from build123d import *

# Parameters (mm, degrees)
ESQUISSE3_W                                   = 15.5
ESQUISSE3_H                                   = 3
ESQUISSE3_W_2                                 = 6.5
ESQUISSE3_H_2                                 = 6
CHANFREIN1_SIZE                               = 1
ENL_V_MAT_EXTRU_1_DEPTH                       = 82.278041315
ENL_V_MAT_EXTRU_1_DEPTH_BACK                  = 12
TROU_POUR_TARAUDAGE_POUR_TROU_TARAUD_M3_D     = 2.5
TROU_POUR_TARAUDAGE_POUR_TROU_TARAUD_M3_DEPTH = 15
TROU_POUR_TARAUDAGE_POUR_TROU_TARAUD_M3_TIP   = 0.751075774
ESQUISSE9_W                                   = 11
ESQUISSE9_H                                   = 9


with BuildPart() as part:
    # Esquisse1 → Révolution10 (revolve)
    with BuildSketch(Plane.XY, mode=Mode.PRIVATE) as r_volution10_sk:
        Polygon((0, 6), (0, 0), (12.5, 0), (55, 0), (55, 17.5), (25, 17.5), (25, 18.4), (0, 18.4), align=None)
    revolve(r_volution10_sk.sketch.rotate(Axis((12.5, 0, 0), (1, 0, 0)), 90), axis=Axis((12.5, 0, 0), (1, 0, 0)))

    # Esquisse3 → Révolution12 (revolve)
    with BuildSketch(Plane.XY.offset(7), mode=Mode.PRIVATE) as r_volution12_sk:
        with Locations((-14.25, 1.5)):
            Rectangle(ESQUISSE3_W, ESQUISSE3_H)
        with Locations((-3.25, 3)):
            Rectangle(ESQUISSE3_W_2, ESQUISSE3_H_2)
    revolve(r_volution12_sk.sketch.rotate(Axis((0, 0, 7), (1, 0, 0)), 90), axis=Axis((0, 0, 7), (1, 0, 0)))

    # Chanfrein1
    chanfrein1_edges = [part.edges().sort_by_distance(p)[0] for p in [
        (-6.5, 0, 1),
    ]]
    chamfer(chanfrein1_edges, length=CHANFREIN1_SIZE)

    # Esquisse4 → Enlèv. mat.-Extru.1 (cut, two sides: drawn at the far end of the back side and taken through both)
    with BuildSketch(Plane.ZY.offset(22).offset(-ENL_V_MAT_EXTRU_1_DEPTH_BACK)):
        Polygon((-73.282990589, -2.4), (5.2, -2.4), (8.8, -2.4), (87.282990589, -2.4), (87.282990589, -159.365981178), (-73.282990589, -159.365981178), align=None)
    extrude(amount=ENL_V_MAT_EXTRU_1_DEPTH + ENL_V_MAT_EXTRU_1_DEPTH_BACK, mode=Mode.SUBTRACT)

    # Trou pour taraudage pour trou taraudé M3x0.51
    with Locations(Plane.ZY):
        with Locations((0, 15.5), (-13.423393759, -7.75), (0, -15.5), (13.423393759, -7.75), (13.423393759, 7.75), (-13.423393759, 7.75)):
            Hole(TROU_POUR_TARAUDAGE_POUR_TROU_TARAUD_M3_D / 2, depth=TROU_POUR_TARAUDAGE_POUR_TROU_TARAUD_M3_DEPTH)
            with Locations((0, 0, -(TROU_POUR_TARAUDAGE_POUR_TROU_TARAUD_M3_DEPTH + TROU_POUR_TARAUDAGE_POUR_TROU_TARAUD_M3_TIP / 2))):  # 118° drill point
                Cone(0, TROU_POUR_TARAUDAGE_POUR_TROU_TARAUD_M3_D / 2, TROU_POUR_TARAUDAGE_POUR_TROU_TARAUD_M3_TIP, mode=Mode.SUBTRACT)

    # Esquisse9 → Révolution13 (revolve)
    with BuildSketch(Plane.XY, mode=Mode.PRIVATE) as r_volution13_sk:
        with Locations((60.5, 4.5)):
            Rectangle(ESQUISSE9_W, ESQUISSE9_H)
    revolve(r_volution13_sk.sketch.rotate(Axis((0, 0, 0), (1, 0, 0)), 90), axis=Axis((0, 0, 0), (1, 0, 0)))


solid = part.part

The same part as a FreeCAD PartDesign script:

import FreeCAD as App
import Part
import Sketcher

V = App.Vector


def edges_at(feature, points):
    """Names of the edges that pass closest to the given points."""
    edges = feature.Shape.Edges
    near = lambda p: min(range(len(edges)), key=lambda i: edges[i].distToShape(Part.Vertex(*p))[0])
    return sorted({f"Edge{near(p) + 1}" for p in points})

doc = App.newDocument("Part")
body = doc.addObject("PartDesign::Body", "Body")

sketch1 = body.newObject("Sketcher::SketchObject", "Sketch")
sketch1.AttachmentSupport = (doc.getObject("XY_Plane"), [""])
sketch1.MapMode = "FlatFace"
sketch1.addGeometry(Part.LineSegment(V(0, 0, 0), V(55, 0, 0)), False)
sketch1.addGeometry(Part.LineSegment(V(55, 0, 0), V(55, 17.5, 0)), False)
sketch1.addGeometry(Part.LineSegment(V(55, 17.5, 0), V(25, 17.5, 0)), False)
sketch1.addGeometry(Part.LineSegment(V(25, 17.5, 0), V(25, 18.4, 0)), False)
sketch1.addGeometry(Part.LineSegment(V(25, 18.4, 0), V(0, 18.4, 0)), False)
sketch1.addGeometry(Part.LineSegment(V(0, 18.4, 0), V(0, 0, 0)), False)
sketch1.addConstraint(Sketcher.Constraint("Coincident", 0, 2, 1, 1))
sketch1.addConstraint(Sketcher.Constraint("Coincident", 1, 2, 2, 1))
sketch1.addConstraint(Sketcher.Constraint("Coincident", 2, 2, 3, 1))
sketch1.addConstraint(Sketcher.Constraint("Coincident", 3, 2, 4, 1))
sketch1.addConstraint(Sketcher.Constraint("Coincident", 4, 2, 5, 1))
sketch1.addConstraint(Sketcher.Constraint("Coincident", 5, 2, 0, 1))
sketch1.addConstraint(Sketcher.Constraint("Horizontal", 0))
sketch1.addConstraint(Sketcher.Constraint("Vertical", 1))
sketch1.addConstraint(Sketcher.Constraint("Horizontal", 2))
sketch1.addConstraint(Sketcher.Constraint("Vertical", 3))
sketch1.addConstraint(Sketcher.Constraint("Horizontal", 4))
sketch1.addConstraint(Sketcher.Constraint("Vertical", 5))
sketch1.addConstraint(Sketcher.Constraint("Coincident", 5, 2, -1, 1))
sketch1.addConstraint(Sketcher.Constraint("DistanceX", 0, 1, 0, 2, 55.0))
sketch1.addConstraint(Sketcher.Constraint("DistanceX", 2, 2, 2, 1, 30.0))
sketch1.addConstraint(Sketcher.Constraint("DistanceY", 1, 1, 1, 2, 17.5))
sketch1.addConstraint(Sketcher.Constraint("DistanceY", 3, 1, 3, 2, 0.9))
revolution = body.newObject("PartDesign::Revolution", "Revolution")
revolution.Profile = sketch1
revolution.ReferenceAxis = (sketch1, ["H_Axis"])
revolution.Angle = 360

sketch2 = body.newObject("Sketcher::SketchObject", "Sketch001")
sketch2.AttachmentSupport = (doc.getObject("XY_Plane"), [""])
sketch2.MapMode = "FlatFace"
sketch2.AttachmentOffset = App.Placement(V(0, 0, 7), App.Rotation())
sketch2.addGeometry(Part.LineSegment(V(-22, 3, 0), V(-22, 0, 0)), False)
sketch2.addGeometry(Part.LineSegment(V(-22, 0, 0), V(0, 0, 0)), False)
sketch2.addGeometry(Part.LineSegment(V(0, 0, 0), V(0, 6, 0)), False)
sketch2.addGeometry(Part.LineSegment(V(0, 6, 0), V(-6.5, 6, 0)), False)
sketch2.addGeometry(Part.LineSegment(V(-6.5, 6, 0), V(-6.5, 3, 0)), False)
sketch2.addGeometry(Part.LineSegment(V(-6.5, 3, 0), V(-22, 3, 0)), False)
sketch2.addConstraint(Sketcher.Constraint("Coincident", 0, 2, 1, 1))
sketch2.addConstraint(Sketcher.Constraint("Coincident", 1, 2, 2, 1))
sketch2.addConstraint(Sketcher.Constraint("Coincident", 2, 2, 3, 1))
sketch2.addConstraint(Sketcher.Constraint("Coincident", 3, 2, 4, 1))
sketch2.addConstraint(Sketcher.Constraint("Coincident", 4, 2, 5, 1))
sketch2.addConstraint(Sketcher.Constraint("Coincident", 5, 2, 0, 1))
sketch2.addConstraint(Sketcher.Constraint("Vertical", 0))
sketch2.addConstraint(Sketcher.Constraint("Horizontal", 1))
sketch2.addConstraint(Sketcher.Constraint("Vertical", 2))
sketch2.addConstraint(Sketcher.Constraint("Horizontal", 3))
sketch2.addConstraint(Sketcher.Constraint("Vertical", 4))
sketch2.addConstraint(Sketcher.Constraint("Horizontal", 5))
sketch2.addConstraint(Sketcher.Constraint("Coincident", 1, 2, -1, 1))
sketch2.addConstraint(Sketcher.Constraint("Equal", 0, 4))
sketch2.addConstraint(Sketcher.Constraint("DistanceX", 1, 1, 1, 2, 22.0))
sketch2.addConstraint(Sketcher.Constraint("DistanceY", 0, 2, 0, 1, 3.0))
sketch2.addConstraint(Sketcher.Constraint("DistanceX", 3, 2, 3, 1, 6.5))
revolution2 = body.newObject("PartDesign::Revolution", "Revolution001")
revolution2.Profile = sketch2
revolution2.ReferenceAxis = (sketch2, ["H_Axis"])
revolution2.Angle = 360
doc.recompute()

chamfer = body.newObject("PartDesign::Chamfer", "Chamfer")
chamfer.Base = (revolution2, edges_at(revolution2, [(-6.5, 0, 1)]))
chamfer.Size = 1

sketch3 = body.newObject("Sketcher::SketchObject", "Sketch002")
sketch3.AttachmentSupport = (doc.getObject("YZ_Plane"), [""])
sketch3.MapMode = "FlatFace"
sketch3.AttachmentOffset = App.Placement(V(0, 0, -22), App.Rotation())
sketch3.addGeometry(Part.LineSegment(V(-2, 87, 0), V(-2, -73, 0)), False)
sketch3.addGeometry(Part.LineSegment(V(-2, -73, 0), V(-159, -73, 0)), False)
sketch3.addGeometry(Part.LineSegment(V(-159, -73, 0), V(-159, 87, 0)), False)
sketch3.addGeometry(Part.LineSegment(V(-159, 87, 0), V(-2, 87, 0)), False)
sketch3.addConstraint(Sketcher.Constraint("Coincident", 0, 2, 1, 1))
sketch3.addConstraint(Sketcher.Constraint("Coincident", 1, 2, 2, 1))
sketch3.addConstraint(Sketcher.Constraint("Coincident", 2, 2, 3, 1))
sketch3.addConstraint(Sketcher.Constraint("Coincident", 3, 2, 0, 1))
sketch3.addConstraint(Sketcher.Constraint("Vertical", 0))
sketch3.addConstraint(Sketcher.Constraint("Horizontal", 1))
sketch3.addConstraint(Sketcher.Constraint("Vertical", 2))
sketch3.addConstraint(Sketcher.Constraint("Horizontal", 3))
sketch3.addConstraint(Sketcher.Constraint("DistanceX", 0, 2, -1, 1, 2.4))
sketch3.addConstraint(Sketcher.Constraint("DistanceX", 1, 2, 1, 1, 156.965981))
sketch3.addConstraint(Sketcher.Constraint("DistanceY", 0, 2, 0, 1, 160.565981))
sketch3.addConstraint(Sketcher.Constraint("DistanceY", 0, 2, -1, 1, 73.282991))
pocket1 = body.newObject("PartDesign::Pocket", "Pocket")
pocket1.Profile = sketch3
pocket1.Type = "TwoLengths"
pocket1.Length = 82.278041
pocket1.Length2 = 12

sketch4 = body.newObject("Sketcher::SketchObject", "Sketch003")
sketch4.AttachmentSupport = (doc.getObject("YZ_Plane"), [""])
sketch4.MapMode = "FlatFace"
sketch4.addGeometry(Part.Circle(V(15.5, 0, 0), V(0, 0, 1), 1.2), False)
sketch4.addGeometry(Part.Circle(V(-7.8, -13.4, 0), V(0, 0, 1), 1.2), False)
sketch4.addGeometry(Part.Circle(V(-15.5, 0, 0), V(0, 0, 1), 1.2), False)
sketch4.addGeometry(Part.Circle(V(-7.8, 13.4, 0), V(0, 0, 1), 1.2), False)
sketch4.addGeometry(Part.Circle(V(7.8, 13.4, 0), V(0, 0, 1), 1.2), False)
sketch4.addGeometry(Part.Circle(V(7.8, -13.4, 0), V(0, 0, 1), 1.2), False)
sketch4.addConstraint(Sketcher.Constraint("Equal", 0, 1))
sketch4.addConstraint(Sketcher.Constraint("Equal", 1, 2))
sketch4.addConstraint(Sketcher.Constraint("Equal", 2, 3))
sketch4.addConstraint(Sketcher.Constraint("Equal", 3, 4))
sketch4.addConstraint(Sketcher.Constraint("Equal", 4, 5))
sketch4.addConstraint(Sketcher.Constraint("Symmetric", 0, 3, 2, 3, -1, 1))
sketch4.addConstraint(Sketcher.Constraint("Symmetric", 1, 3, 4, 3, -1, 1))
sketch4.addConstraint(Sketcher.Constraint("Symmetric", 3, 3, 5, 3, -1, 1))
sketch4.addConstraint(Sketcher.Constraint("Symmetric", 3, 3, 4, 3, -2))
sketch4.addConstraint(Sketcher.Constraint("PointOnObject", 0, 3, -1))
sketch4.addConstraint(Sketcher.Constraint("Diameter", 0, 2.5))
sketch4.addConstraint(Sketcher.Constraint("DistanceX", 2, 3, 0, 3, 31.0))
sketch4.addConstraint(Sketcher.Constraint("DistanceX", 3, 3, 4, 3, 15.5))
sketch4.addConstraint(Sketcher.Constraint("DistanceY", 1, 3, -1, 1, 13.423394))
doc.recompute()
hole = body.newObject("PartDesign::Hole", "Hole")
hole.Profile = sketch4
hole.ThreadType = "None"
hole.Diameter = 2.5
hole.DepthType = "Dimension"
hole.Depth = 15
hole.DrillPoint = "Angled"
hole.DrillPointAngle = 118
hole.Reversed = True

sketch5 = body.newObject("Sketcher::SketchObject", "Sketch004")
sketch5.AttachmentSupport = (doc.getObject("XY_Plane"), [""])
sketch5.MapMode = "FlatFace"
sketch5.addGeometry(Part.LineSegment(V(55, 9, 0), V(55, 0, 0)), False)
sketch5.addGeometry(Part.LineSegment(V(55, 0, 0), V(66, 0, 0)), False)
sketch5.addGeometry(Part.LineSegment(V(66, 0, 0), V(66, 9, 0)), False)
sketch5.addGeometry(Part.LineSegment(V(66, 9, 0), V(55, 9, 0)), False)
sketch5.addConstraint(Sketcher.Constraint("Coincident", 0, 2, 1, 1))
sketch5.addConstraint(Sketcher.Constraint("Coincident", 1, 2, 2, 1))
sketch5.addConstraint(Sketcher.Constraint("Coincident", 2, 2, 3, 1))
sketch5.addConstraint(Sketcher.Constraint("Coincident", 3, 2, 0, 1))
sketch5.addConstraint(Sketcher.Constraint("Vertical", 0))
sketch5.addConstraint(Sketcher.Constraint("Horizontal", 1))
sketch5.addConstraint(Sketcher.Constraint("Vertical", 2))
sketch5.addConstraint(Sketcher.Constraint("Horizontal", 3))
sketch5.addConstraint(Sketcher.Constraint("PointOnObject", 0, 2, -1))
sketch5.addConstraint(Sketcher.Constraint("DistanceX", 1, 1, 1, 2, 11.0))
sketch5.addConstraint(Sketcher.Constraint("DistanceY", 0, 2, 0, 1, 9.0))
sketch5.addConstraint(Sketcher.Constraint("DistanceX", -1, 1, 0, 2, 55.0))
revolution3 = body.newObject("PartDesign::Revolution", "Revolution002")
revolution3.Profile = sketch5
revolution3.ReferenceAxis = (sketch5, ["H_Axis"])
revolution3.Angle = 360

doc.recompute()
